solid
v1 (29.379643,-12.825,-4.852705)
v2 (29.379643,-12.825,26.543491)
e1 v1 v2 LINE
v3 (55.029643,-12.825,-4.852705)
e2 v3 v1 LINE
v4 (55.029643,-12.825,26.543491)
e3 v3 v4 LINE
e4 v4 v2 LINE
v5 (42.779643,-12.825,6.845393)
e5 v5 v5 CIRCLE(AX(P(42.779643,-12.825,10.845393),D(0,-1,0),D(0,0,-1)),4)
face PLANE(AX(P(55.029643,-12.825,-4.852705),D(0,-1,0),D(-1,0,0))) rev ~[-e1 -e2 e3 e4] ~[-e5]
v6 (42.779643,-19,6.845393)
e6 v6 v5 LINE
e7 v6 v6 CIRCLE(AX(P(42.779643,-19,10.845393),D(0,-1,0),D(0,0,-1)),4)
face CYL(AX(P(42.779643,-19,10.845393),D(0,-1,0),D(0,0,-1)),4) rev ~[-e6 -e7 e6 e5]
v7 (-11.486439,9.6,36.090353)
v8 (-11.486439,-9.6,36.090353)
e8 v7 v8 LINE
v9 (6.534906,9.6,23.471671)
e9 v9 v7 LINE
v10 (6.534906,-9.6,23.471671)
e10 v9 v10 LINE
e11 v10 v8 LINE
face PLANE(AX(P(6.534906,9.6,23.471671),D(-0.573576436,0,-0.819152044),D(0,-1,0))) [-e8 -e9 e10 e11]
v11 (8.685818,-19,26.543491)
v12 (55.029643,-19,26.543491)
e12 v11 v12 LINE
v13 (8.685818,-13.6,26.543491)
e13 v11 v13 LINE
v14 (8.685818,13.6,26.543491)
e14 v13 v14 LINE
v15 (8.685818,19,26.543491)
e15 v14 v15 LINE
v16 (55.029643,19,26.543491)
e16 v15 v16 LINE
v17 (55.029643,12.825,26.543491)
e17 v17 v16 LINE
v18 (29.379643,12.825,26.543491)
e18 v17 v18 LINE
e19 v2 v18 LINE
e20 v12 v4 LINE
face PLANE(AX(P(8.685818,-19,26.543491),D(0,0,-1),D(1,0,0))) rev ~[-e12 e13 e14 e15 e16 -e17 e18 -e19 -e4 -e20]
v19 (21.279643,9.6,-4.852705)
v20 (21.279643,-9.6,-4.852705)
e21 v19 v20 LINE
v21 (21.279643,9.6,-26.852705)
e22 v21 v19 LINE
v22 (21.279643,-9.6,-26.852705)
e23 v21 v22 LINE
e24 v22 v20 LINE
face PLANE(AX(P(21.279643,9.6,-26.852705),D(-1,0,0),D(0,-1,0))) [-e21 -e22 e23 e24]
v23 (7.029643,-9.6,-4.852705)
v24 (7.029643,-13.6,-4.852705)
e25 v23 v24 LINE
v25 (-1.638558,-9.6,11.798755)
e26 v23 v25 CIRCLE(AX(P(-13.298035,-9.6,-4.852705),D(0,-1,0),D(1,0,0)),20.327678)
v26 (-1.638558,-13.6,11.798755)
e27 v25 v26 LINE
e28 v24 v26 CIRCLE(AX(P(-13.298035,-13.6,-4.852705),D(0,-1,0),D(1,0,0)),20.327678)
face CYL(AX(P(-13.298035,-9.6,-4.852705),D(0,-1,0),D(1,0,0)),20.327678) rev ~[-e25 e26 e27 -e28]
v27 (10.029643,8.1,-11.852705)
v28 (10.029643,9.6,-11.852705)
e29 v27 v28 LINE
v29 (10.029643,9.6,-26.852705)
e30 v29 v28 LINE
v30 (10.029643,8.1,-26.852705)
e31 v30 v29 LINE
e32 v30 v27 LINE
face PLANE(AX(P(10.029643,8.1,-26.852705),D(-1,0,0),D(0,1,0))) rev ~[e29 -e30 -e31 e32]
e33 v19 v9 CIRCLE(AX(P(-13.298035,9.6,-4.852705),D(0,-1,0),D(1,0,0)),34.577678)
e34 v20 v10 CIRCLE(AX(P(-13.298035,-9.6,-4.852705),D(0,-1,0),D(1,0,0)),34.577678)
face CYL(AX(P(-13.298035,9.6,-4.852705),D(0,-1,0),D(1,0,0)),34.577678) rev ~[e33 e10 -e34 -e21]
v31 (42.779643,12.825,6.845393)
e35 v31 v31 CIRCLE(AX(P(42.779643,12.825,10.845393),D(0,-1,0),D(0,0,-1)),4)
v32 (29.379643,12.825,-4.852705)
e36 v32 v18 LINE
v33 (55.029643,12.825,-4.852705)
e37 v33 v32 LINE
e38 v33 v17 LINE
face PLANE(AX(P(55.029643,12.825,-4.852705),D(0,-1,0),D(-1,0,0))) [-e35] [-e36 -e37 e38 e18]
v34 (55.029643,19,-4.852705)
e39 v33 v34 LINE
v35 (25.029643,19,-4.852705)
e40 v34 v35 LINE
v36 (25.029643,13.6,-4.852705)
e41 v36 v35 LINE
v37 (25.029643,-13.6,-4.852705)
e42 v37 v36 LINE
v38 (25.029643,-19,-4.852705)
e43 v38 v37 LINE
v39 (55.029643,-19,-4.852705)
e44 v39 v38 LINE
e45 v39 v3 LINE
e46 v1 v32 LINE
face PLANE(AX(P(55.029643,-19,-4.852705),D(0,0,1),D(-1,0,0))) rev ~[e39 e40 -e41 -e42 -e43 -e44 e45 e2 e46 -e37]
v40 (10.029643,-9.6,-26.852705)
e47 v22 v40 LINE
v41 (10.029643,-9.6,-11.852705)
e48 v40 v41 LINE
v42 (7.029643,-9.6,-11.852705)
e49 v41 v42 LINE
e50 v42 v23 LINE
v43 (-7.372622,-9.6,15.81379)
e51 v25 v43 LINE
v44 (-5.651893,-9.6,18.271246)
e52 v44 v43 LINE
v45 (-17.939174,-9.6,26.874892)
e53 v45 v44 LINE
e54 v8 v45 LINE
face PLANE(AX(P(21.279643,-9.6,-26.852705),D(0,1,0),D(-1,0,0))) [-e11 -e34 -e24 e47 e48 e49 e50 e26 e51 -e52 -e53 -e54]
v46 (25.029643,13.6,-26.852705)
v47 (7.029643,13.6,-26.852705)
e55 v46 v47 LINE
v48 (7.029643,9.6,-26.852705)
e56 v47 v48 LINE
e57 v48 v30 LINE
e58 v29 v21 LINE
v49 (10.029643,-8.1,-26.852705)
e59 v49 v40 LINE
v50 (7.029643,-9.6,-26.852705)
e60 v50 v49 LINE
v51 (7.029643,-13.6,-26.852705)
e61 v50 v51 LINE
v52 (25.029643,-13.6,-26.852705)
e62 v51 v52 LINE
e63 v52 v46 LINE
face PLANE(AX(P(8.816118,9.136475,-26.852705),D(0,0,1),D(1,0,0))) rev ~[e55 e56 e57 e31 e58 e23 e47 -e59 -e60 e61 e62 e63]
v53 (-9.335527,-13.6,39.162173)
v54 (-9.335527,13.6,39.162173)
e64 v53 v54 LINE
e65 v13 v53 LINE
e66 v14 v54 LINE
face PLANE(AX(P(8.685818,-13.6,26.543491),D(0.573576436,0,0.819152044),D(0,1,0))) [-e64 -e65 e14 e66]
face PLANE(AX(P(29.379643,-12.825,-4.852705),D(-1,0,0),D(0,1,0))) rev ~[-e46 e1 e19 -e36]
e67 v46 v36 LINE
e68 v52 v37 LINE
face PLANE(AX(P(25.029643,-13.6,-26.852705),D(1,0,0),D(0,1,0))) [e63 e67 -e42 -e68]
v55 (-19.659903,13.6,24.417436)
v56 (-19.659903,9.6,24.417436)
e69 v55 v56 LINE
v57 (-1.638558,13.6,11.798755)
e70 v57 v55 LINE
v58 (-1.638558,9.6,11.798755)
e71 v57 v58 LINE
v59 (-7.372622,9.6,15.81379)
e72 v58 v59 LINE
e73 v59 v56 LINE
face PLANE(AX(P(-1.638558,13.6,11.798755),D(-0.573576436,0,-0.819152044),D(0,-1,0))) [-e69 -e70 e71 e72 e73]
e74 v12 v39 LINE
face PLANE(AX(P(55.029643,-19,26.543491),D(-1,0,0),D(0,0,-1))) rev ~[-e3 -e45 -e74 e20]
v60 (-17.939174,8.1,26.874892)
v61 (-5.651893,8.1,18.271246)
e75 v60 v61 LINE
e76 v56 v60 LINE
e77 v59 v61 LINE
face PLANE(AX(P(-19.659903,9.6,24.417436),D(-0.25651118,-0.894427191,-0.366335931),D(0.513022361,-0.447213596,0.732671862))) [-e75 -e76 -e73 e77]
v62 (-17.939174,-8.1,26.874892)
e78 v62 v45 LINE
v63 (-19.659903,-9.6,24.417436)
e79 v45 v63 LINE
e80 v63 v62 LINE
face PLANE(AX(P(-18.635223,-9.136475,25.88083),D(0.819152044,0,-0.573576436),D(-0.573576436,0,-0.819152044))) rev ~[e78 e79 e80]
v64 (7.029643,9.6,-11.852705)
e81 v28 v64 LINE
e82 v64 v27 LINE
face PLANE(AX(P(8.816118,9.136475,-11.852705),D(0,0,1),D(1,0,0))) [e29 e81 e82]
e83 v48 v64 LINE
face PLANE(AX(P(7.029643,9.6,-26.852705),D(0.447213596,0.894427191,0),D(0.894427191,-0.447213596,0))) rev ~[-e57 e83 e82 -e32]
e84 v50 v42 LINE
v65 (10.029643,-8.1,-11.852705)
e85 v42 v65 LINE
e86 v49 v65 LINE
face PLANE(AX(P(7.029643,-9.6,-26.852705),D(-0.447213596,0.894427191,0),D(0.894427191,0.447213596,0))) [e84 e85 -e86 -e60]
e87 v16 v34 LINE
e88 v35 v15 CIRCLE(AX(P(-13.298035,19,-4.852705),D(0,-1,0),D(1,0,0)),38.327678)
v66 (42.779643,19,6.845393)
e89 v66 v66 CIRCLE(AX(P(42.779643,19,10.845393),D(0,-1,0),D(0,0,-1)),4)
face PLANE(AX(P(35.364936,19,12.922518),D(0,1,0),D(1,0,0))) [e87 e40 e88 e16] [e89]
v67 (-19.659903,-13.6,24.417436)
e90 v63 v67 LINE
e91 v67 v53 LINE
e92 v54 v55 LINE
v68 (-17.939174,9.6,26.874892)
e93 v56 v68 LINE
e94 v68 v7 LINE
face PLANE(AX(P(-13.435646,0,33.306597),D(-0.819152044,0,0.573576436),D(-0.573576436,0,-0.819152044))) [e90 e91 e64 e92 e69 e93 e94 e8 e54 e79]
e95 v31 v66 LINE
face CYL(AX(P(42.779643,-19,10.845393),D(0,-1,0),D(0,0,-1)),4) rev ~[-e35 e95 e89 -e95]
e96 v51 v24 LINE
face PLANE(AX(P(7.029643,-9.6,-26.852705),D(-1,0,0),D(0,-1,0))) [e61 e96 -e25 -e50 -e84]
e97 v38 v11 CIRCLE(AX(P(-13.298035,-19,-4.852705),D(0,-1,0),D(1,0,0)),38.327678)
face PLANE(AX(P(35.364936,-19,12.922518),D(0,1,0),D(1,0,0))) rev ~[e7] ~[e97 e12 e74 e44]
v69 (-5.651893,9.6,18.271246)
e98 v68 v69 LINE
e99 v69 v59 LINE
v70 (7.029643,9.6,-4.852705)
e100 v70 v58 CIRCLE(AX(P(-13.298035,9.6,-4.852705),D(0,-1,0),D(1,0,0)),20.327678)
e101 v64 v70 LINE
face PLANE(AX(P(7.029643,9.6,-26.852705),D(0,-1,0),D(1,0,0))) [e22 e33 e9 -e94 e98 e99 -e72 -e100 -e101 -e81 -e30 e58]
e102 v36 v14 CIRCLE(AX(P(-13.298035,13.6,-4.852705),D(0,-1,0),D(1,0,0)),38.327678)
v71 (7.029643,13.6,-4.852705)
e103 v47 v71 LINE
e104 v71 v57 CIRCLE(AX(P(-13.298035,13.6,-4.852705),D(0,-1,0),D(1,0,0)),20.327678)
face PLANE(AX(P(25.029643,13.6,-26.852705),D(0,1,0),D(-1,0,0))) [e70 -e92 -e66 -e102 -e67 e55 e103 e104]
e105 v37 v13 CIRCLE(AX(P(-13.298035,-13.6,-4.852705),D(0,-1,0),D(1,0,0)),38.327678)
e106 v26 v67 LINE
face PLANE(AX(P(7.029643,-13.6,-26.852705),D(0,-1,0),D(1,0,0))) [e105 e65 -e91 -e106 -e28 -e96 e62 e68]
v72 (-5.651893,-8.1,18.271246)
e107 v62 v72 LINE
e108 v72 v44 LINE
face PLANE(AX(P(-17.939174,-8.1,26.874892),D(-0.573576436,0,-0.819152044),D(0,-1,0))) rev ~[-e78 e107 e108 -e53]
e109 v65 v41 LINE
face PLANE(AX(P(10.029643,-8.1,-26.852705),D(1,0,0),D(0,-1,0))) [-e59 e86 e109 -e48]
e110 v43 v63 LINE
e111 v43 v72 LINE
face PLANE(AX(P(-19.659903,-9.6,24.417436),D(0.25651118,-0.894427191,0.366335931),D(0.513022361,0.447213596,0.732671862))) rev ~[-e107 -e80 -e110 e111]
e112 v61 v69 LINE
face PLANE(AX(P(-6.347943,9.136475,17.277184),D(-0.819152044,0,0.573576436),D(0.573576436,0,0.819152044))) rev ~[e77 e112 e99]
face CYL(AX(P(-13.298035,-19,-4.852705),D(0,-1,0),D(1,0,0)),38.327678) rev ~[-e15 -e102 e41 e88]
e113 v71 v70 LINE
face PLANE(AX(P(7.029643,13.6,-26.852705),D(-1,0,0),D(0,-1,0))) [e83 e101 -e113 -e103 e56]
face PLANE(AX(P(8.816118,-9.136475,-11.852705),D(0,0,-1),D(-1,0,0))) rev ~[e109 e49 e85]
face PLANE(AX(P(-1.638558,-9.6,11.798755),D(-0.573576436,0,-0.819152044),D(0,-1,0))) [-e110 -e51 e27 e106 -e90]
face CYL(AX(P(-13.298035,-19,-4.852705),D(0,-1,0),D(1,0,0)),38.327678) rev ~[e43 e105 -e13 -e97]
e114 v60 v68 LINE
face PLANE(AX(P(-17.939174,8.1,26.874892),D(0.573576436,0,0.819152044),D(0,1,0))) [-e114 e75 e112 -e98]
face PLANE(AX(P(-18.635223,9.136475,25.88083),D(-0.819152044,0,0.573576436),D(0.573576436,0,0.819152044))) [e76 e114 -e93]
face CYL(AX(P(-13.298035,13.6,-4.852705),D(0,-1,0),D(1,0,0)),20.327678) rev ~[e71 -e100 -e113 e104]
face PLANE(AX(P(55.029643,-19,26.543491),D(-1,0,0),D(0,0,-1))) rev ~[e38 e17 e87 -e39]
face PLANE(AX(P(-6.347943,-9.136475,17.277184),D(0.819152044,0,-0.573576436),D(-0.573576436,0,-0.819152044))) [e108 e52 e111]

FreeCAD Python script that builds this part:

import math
import FreeCAD as App
import Part
import Sketcher
Q = App.Units.Quantity

doc = App.newDocument("Part")
body = doc.addObject("PartDesign::Body", "Body")

# Sketch on XY plane
sketch1 = body.newObject("Sketcher::SketchObject", "Sketch")
sketch1.AttachmentSupport = (doc.getObject("XY_Plane"), [""])
sketch1.MapMode = "FlatFace"
sketch1.AttachmentOffset = App.Placement(App.Vector(0, 0, -26.852705), App.Rotation())
sketch1.addGeometry([
    Part.LineSegment(App.Vector(21.3, 9.6, 0), App.Vector(21.3, -9.6, 0)),  # 0
    Part.LineSegment(App.Vector(21.3, -9.6, 0), App.Vector(7, -9.6, 0)),  # 1
    Part.LineSegment(App.Vector(7, -9.6, 0), App.Vector(7, -13.6, 0)),  # 2
    Part.LineSegment(App.Vector(7, -13.6, 0), App.Vector(25, -13.6, 0)),  # 3
    Part.LineSegment(App.Vector(25, -13.6, 0), App.Vector(25, 13.6, 0)),  # 4
    Part.LineSegment(App.Vector(25, 13.6, 0), App.Vector(7, 13.6, 0)),  # 5
    Part.LineSegment(App.Vector(7, 13.6, 0), App.Vector(7, 9.6, 0)),  # 6
    Part.LineSegment(App.Vector(7, 9.6, 0), App.Vector(21.3, 9.6, 0)),  # 7
], False)
sketch1.addConstraint([
    Sketcher.Constraint("Coincident", 0, 2, 1, 1),
    Sketcher.Constraint("Coincident", 1, 2, 2, 1),
    Sketcher.Constraint("Coincident", 2, 2, 3, 1),
    Sketcher.Constraint("Coincident", 3, 2, 4, 1),
    Sketcher.Constraint("Coincident", 4, 2, 5, 1),
    Sketcher.Constraint("Coincident", 5, 2, 6, 1),
    Sketcher.Constraint("Coincident", 6, 2, 7, 1),
    Sketcher.Constraint("Coincident", 7, 2, 0, 1),
    Sketcher.Constraint("Vertical", 0),
    Sketcher.Constraint("Horizontal", 1),
    Sketcher.Constraint("Vertical", 2),
    Sketcher.Constraint("Horizontal", 3),
    Sketcher.Constraint("Vertical", 4),
    Sketcher.Constraint("Horizontal", 5),
    Sketcher.Constraint("Vertical", 6),
    Sketcher.Constraint("Horizontal", 7),
    Sketcher.Constraint("Symmetric", 2, 2, 5, 2, -1),
    Sketcher.Constraint("Equal", 2, 6),
    Sketcher.Constraint("DistanceX", 3, 1, 3, 2, Q("18 mm")),
    Sketcher.Constraint("DistanceY", 2, 2, 2, 1, Q("4 mm")),
    Sketcher.Constraint("DistanceY", 0, 2, 0, 1, Q("19.2 mm")),
    Sketcher.Constraint("DistanceX", 1, 2, 1, 1, Q("14.25 mm")),
    Sketcher.Constraint("DistanceX", -1, 1, 0, 2, Q("21.279643 mm")),
])

# Sketch on XZ plane
sketch2 = body.newObject("Sketcher::SketchObject", "Sketch001")
sketch2.AttachmentSupport = (doc.getObject("XZ_Plane"), [""])
sketch2.MapMode = "FlatFace"
sketch2.addGeometry([
    Part.LineSegment(App.Vector(21, -27, 0), App.Vector(21, -5, 0)),
    Part.ArcOfCircle(Part.Circle(App.Vector(-13, -5, 0), App.Vector(0, 0, 1), 35), math.radians(0), math.radians(55)),
    Part.LineSegment(App.Vector(7, 23, 0), App.Vector(-11, 36, 0)),
], False)
sketch2.addConstraint([
    Sketcher.Constraint("Tangent", 0, 2, 1, 1),
    Sketcher.Constraint("Tangent", 1, 2, 2, 1),
    Sketcher.Constraint("Vertical", 0),
    Sketcher.Constraint("DistanceY", 0, 1, 0, 2, Q("22 mm")),
    Sketcher.Constraint("Angle", 2, Q("145 deg")),
    Sketcher.Constraint("Distance", 2, Q("22 mm")),
    Sketcher.Constraint("Radius", 1, Q("34.577678 mm")),
    Sketcher.Constraint("DistanceY", -1, 1, 1, 2, Q("23.471671 mm")),
    Sketcher.Constraint("DistanceX", 2, 2, -1, 1, Q("11.486439 mm")),
])
doc.recompute()

additivepipe = body.newObject("PartDesign::AdditivePipe", "AdditivePipe")
additivepipe.Profile = sketch1
additivepipe.Spine = (sketch2, ["Edge1", "Edge2", "Edge3"])

# Sketch on XY plane
sketch3 = body.newObject("Sketcher::SketchObject", "Sketch002")
sketch3.AttachmentSupport = (doc.getObject("XY_Plane"), [""])
sketch3.MapMode = "FlatFace"
sketch3.AttachmentOffset = App.Placement(App.Vector(0, 0, -26.852705), App.Rotation())
sketch3.addGeometry([
    Part.LineSegment(App.Vector(10, 8.1, 0), App.Vector(7, 9.6, 0)),  # 0
    Part.LineSegment(App.Vector(7, 9.6, 0), App.Vector(10, 9.6, 0)),  # 1
    Part.LineSegment(App.Vector(10, 9.6, 0), App.Vector(10, 8.1, 0)),  # 2
    Part.LineSegment(App.Vector(7, -9.6, 0), App.Vector(10, -8.1, 0)),  # 3
    Part.LineSegment(App.Vector(10, -8.1, 0), App.Vector(10, -9.6, 0)),  # 4
    Part.LineSegment(App.Vector(10, -9.6, 0), App.Vector(7, -9.6, 0)),  # 5
], False)
sketch3.addConstraint([
    Sketcher.Constraint("Coincident", 0, 2, 1, 1),
    Sketcher.Constraint("Coincident", 1, 2, 2, 1),
    Sketcher.Constraint("Coincident", 2, 2, 0, 1),
    Sketcher.Constraint("Coincident", 3, 2, 4, 1),
    Sketcher.Constraint("Coincident", 4, 2, 5, 1),
    Sketcher.Constraint("Coincident", 5, 2, 3, 1),
    Sketcher.Constraint("Horizontal", 1),
    Sketcher.Constraint("Vertical", 2),
    Sketcher.Constraint("Vertical", 4),
    Sketcher.Constraint("Horizontal", 5),
    Sketcher.Constraint("Symmetric", 2, 2, 3, 2, -1),
    Sketcher.Constraint("Symmetric", 0, 2, 5, 2, -1),
    Sketcher.Constraint("DistanceX", 1, 1, 1, 2, Q("3 mm")),
    Sketcher.Constraint("DistanceY", 2, 2, 2, 1, Q("1.5 mm")),
    Sketcher.Constraint("DistanceY", -1, 1, 0, 2, Q("9.6 mm")),
    Sketcher.Constraint("DistanceX", -1, 1, 0, 2, Q("7.029643 mm")),
])
pad1 = body.newObject("PartDesign::Pad", "Pad")
pad1.Profile = sketch3
pad1.Length = 15

# Sketch on an angled plane
sketch4 = body.newObject("Sketcher::SketchObject", "Sketch003")
sketch4.Placement = App.Placement(App.Vector(-24.664435, 0, 17.270223), App.Rotation(App.Vector(0.573576436, 0, 0.819152044), App.Vector(0, 0.999999999, 0), App.Vector(-0.819152044, 0, 0.573576436), "ZXY"))
sketch4.addGeometry([
    Part.LineSegment(App.Vector(8.7, 9.6, 0), App.Vector(11.7, 8.1, 0)),  # 0
    Part.LineSegment(App.Vector(11.7, 8.1, 0), App.Vector(11.7, 9.6, 0)),  # 1
    Part.LineSegment(App.Vector(11.7, 9.6, 0), App.Vector(8.7, 9.6, 0)),  # 2
    Part.LineSegment(App.Vector(11.7, -9.6, 0), App.Vector(11.7, -8.1, 0)),  # 3
    Part.LineSegment(App.Vector(11.7, -8.1, 0), App.Vector(8.7, -9.6, 0)),  # 4
    Part.LineSegment(App.Vector(8.7, -9.6, 0), App.Vector(11.7, -9.6, 0)),  # 5
], False)
sketch4.addConstraint([
    Sketcher.Constraint("Coincident", 0, 2, 1, 1),
    Sketcher.Constraint("Coincident", 1, 2, 2, 1),
    Sketcher.Constraint("Coincident", 2, 2, 0, 1),
    Sketcher.Constraint("Coincident", 3, 2, 4, 1),
    Sketcher.Constraint("Coincident", 4, 2, 5, 1),
    Sketcher.Constraint("Coincident", 5, 2, 3, 1),
    Sketcher.Constraint("Vertical", 1),
    Sketcher.Constraint("Horizontal", 2),
    Sketcher.Constraint("Vertical", 3),
    Sketcher.Constraint("Horizontal", 5),
    Sketcher.Constraint("Symmetric", 0, 2, 3, 2, -1),
    Sketcher.Constraint("Symmetric", 2, 2, 4, 2, -1),
    Sketcher.Constraint("DistanceX", 2, 2, 2, 1, Q("3 mm")),
    Sketcher.Constraint("DistanceY", 1, 1, 1, 2, Q("1.5 mm")),
    Sketcher.Constraint("DistanceY", -1, 1, 0, 2, Q("8.1 mm")),
    Sketcher.Constraint("DistanceX", -1, 1, 0, 2, Q("11.725136 mm")),
])
pad2 = body.newObject("PartDesign::Pad", "Pad001")
pad2.Profile = sketch4
pad2.Length = 15
pad2.Reversed = True

# Sketch on XZ plane
sketch5 = body.newObject("Sketcher::SketchObject", "Sketch004")
sketch5.AttachmentSupport = (doc.getObject("XZ_Plane"), [""])
sketch5.MapMode = "FlatFace"
sketch5.addGeometry([
    Part.LineSegment(App.Vector(9, 27, 0), App.Vector(55, 27, 0)),
    Part.LineSegment(App.Vector(55, 27, 0), App.Vector(55, -5, 0)),
    Part.LineSegment(App.Vector(55, -5, 0), App.Vector(25, -5, 0)),
    Part.ArcOfCircle(Part.Circle(App.Vector(-13, -5, 0), App.Vector(0, 0, 1), 38), math.radians(0), math.radians(55)),
], False)
sketch5.addConstraint([
    Sketcher.Constraint("Coincident", 0, 2, 1, 1),
    Sketcher.Constraint("Coincident", 1, 2, 2, 1),
    Sketcher.Constraint("Coincident", 2, 2, 3, 1),
    Sketcher.Constraint("Coincident", 3, 2, 0, 1),
    Sketcher.Constraint("Horizontal", 0),
    Sketcher.Constraint("Vertical", 1),
    Sketcher.Constraint("Horizontal", 2),
    Sketcher.Constraint("Horizontal", 3, 3, 1, 2),
    Sketcher.Constraint("DistanceX", 2, 2, 2, 1, Q("30 mm")),
    Sketcher.Constraint("Radius", 3, Q("38.327678 mm")),
    Sketcher.Constraint("DistanceX", 0, 1, 0, 2, Q("46.343825 mm")),
    Sketcher.Constraint("DistanceY", -1, 1, 0, 2, Q("26.543491 mm")),
    Sketcher.Constraint("DistanceX", 3, 3, -1, 1, Q("13.298035 mm")),
])
pad3 = body.newObject("PartDesign::Pad", "Pad002")
pad3.Profile = sketch5
pad3.Type = "TwoLengths"
pad3.Length = 19
pad3.Length2 = 19
pad3.Reversed = True

# Sketch on XY plane
sketch6 = body.newObject("Sketcher::SketchObject", "Sketch005")
sketch6.AttachmentSupport = (doc.getObject("XY_Plane"), [""])
sketch6.MapMode = "FlatFace"
sketch6.AttachmentOffset = App.Placement(App.Vector(0, 0, -4.852705), App.Rotation())
sketch6.addGeometry([
    Part.LineSegment(App.Vector(55, 13, 0), App.Vector(55, -13, 0)),
    Part.LineSegment(App.Vector(55, -13, 0), App.Vector(29, -13, 0)),
    Part.LineSegment(App.Vector(29, -13, 0), App.Vector(29, 13, 0)),
    Part.LineSegment(App.Vector(29, 13, 0), App.Vector(55, 13, 0)),
], False)
sketch6.addConstraint([
    Sketcher.Constraint("Coincident", 0, 2, 1, 1),
    Sketcher.Constraint("Coincident", 1, 2, 2, 1),
    Sketcher.Constraint("Coincident", 2, 2, 3, 1),
    Sketcher.Constraint("Coincident", 3, 2, 0, 1),
    Sketcher.Constraint("Vertical", 0),
    Sketcher.Constraint("Horizontal", 1),
    Sketcher.Constraint("Vertical", 2),
    Sketcher.Constraint("Horizontal", 3),
    Sketcher.Constraint("Equal", 3, 0),
    Sketcher.Constraint("DistanceX", 1, 2, 1, 1, Q("25.65 mm")),
    Sketcher.Constraint("DistanceY", 0, 2, -1, 1, Q("12.825 mm")),
    Sketcher.Constraint("DistanceX", -1, 1, 0, 2, Q("55.029643 mm")),
])
pocket1 = body.newObject("PartDesign::Pocket", "Pocket")
pocket1.Profile = sketch6
pocket1.Length = 41
pocket1.Reversed = True

# Sketch on XZ plane
sketch7 = body.newObject("Sketcher::SketchObject", "Sketch006")
sketch7.AttachmentSupport = (doc.getObject("XZ_Plane"), [""])
sketch7.MapMode = "FlatFace"
sketch7.AttachmentOffset = App.Placement(App.Vector(0, 0, 19), App.Rotation())
sketch7.addGeometry(Part.Circle(App.Vector(42.8, 10.8, 0), App.Vector(0, 0, 1), 4), False)
sketch7.addConstraint([
    Sketcher.Constraint("Diameter", 0, Q("8 mm")),
    Sketcher.Constraint("DistanceX", -1, 1, 0, 3, Q("42.779643 mm")),
    Sketcher.Constraint("DistanceY", -1, 1, 0, 3, Q("10.845393 mm")),
])
pocket2 = body.newObject("PartDesign::Pocket", "Pocket001")
pocket2.Profile = sketch7
pocket2.Length = 41

doc.recompute()
